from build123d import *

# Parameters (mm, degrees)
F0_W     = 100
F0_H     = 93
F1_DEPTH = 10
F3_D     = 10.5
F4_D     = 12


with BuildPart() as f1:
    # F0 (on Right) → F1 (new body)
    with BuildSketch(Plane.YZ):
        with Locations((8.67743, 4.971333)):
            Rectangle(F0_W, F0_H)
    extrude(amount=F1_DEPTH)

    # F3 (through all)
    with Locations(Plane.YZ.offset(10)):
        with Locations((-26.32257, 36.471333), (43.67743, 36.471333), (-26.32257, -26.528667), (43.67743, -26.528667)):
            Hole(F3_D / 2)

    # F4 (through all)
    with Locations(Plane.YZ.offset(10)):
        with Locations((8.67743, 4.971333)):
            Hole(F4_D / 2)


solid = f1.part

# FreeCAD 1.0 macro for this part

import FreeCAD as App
import Part
import Sketcher
from FreeCAD import Vector


def add_polygon(sketch, points):
    """Adds a closed chain of lines whose ends are joined by coincident constraints."""
    first, n = sketch.GeometryCount, len(points)
    for a, b in zip(points, points[1:] + points[:1]):
        sketch.addGeometry(Part.LineSegment(App.Vector(*a, 0), App.Vector(*b, 0)), False)
    for i in range(n):
        sketch.addConstraint(Sketcher.Constraint("Coincident", first + i, 2, first + (i + 1) % n, 1))

doc = App.newDocument("Part")
body = doc.addObject("PartDesign::Body", "Body")

sketch1 = doc.addObject("Sketcher::SketchObject", "Sketch")
body.addObject(sketch1)
sketch1.AttachmentSupport = (doc.YZ_Plane, [""])
sketch1.MapMode = "FlatFace"
add_polygon(sketch1, [(-41, 51), (-41, -42), (59, -42), (59, 51)])
sketch1.addConstraint(Sketcher.Constraint("Vertical", 0))
sketch1.addConstraint(Sketcher.Constraint("Horizontal", 1))
sketch1.addConstraint(Sketcher.Constraint("Vertical", 2))
sketch1.addConstraint(Sketcher.Constraint("Horizontal", 3))
sketch1.addConstraint(Sketcher.Constraint("DistanceX", 1, 1, 1, 2, 100.0))
sketch1.addConstraint(Sketcher.Constraint("DistanceY", 0, 2, 0, 1, 93.0))
sketch1.addConstraint(Sketcher.Constraint("DistanceX", 0, 2, -1, 1, 41.32257))
sketch1.addConstraint(Sketcher.Constraint("DistanceY", 0, 2, -1, 1, 41.528667))
pad1 = doc.addObject("PartDesign::Pad", "Pad")
body.addObject(pad1)
pad1.Profile = sketch1
pad1.Length = 10

sketch2 = doc.addObject("Sketcher::SketchObject", "Sketch001")
body.addObject(sketch2)
sketch2.AttachmentSupport = (doc.YZ_Plane, [""])
sketch2.MapMode = "FlatFace"
sketch2.AttachmentOffset = App.Placement(Vector(0, 0, 10), App.Rotation())
sketch2.addGeometry(Part.Circle(Vector(-26, 36, 0), Vector(0, 0, 1), 5), False)
sketch2.addGeometry(Part.Circle(Vector(44, 36, 0), Vector(0, 0, 1), 5), False)
sketch2.addGeometry(Part.Circle(Vector(-26, -27, 0), Vector(0, 0, 1), 5), False)
sketch2.addGeometry(Part.Circle(Vector(44, -27, 0), Vector(0, 0, 1), 5), False)
sketch2.addConstraint(Sketcher.Constraint("Equal", 0, 1))
sketch2.addConstraint(Sketcher.Constraint("Equal", 1, 2))
sketch2.addConstraint(Sketcher.Constraint("Equal", 2, 3))
sketch2.addConstraint(Sketcher.Constraint("Horizontal", 0, 3, 1, 3))
sketch2.addConstraint(Sketcher.Constraint("Horizontal", 2, 3, 3, 3))
sketch2.addConstraint(Sketcher.Constraint("Vertical", 0, 3, 2, 3))
sketch2.addConstraint(Sketcher.Constraint("Vertical", 1, 3, 3, 3))
sketch2.addConstraint(Sketcher.Constraint("Diameter", 0, 10.5))
sketch2.addConstraint(Sketcher.Constraint("DistanceX", 0, 3, 1, 3, 70.0))
sketch2.addConstraint(Sketcher.Constraint("DistanceY", 2, 3, 0, 3, 63.0))
sketch2.addConstraint(Sketcher.Constraint("DistanceX", 0, 3, -1, 1, 26.32257))
sketch2.addConstraint(Sketcher.Constraint("DistanceY", -1, 1, 0, 3, 36.471333))
doc.recompute()
hole = doc.addObject("PartDesign::Hole", "Hole")
body.addObject(hole)
hole.Profile = sketch2
hole.ThreadType = "None"
hole.Diameter = 10.5
hole.DepthType = "ThroughAll"

sketch3 = doc.addObject("Sketcher::SketchObject", "Sketch002")
body.addObject(sketch3)
sketch3.AttachmentSupport = (doc.YZ_Plane, [""])
sketch3.MapMode = "FlatFace"
sketch3.AttachmentOffset = App.Placement(Vector(0, 0, 10), App.Rotation())
sketch3.addGeometry(Part.Circle(Vector(9, 5, 0), Vector(0, 0, 1), 6), False)
sketch3.addConstraint(Sketcher.Constraint("Diameter", 0, 12.0))
sketch3.addConstraint(Sketcher.Constraint("DistanceX", -1, 1, 0, 3, 8.67743))
sketch3.addConstraint(Sketcher.Constraint("DistanceY", -1, 1, 0, 3, 4.971333))
doc.recompute()
hole2 = doc.addObject("PartDesign::Hole", "Hole001")
body.addObject(hole2)
hole2.Profile = sketch3
hole2.ThreadType = "None"
hole2.Diameter = 12
hole2.DepthType = "ThroughAll"

doc.recompute()
